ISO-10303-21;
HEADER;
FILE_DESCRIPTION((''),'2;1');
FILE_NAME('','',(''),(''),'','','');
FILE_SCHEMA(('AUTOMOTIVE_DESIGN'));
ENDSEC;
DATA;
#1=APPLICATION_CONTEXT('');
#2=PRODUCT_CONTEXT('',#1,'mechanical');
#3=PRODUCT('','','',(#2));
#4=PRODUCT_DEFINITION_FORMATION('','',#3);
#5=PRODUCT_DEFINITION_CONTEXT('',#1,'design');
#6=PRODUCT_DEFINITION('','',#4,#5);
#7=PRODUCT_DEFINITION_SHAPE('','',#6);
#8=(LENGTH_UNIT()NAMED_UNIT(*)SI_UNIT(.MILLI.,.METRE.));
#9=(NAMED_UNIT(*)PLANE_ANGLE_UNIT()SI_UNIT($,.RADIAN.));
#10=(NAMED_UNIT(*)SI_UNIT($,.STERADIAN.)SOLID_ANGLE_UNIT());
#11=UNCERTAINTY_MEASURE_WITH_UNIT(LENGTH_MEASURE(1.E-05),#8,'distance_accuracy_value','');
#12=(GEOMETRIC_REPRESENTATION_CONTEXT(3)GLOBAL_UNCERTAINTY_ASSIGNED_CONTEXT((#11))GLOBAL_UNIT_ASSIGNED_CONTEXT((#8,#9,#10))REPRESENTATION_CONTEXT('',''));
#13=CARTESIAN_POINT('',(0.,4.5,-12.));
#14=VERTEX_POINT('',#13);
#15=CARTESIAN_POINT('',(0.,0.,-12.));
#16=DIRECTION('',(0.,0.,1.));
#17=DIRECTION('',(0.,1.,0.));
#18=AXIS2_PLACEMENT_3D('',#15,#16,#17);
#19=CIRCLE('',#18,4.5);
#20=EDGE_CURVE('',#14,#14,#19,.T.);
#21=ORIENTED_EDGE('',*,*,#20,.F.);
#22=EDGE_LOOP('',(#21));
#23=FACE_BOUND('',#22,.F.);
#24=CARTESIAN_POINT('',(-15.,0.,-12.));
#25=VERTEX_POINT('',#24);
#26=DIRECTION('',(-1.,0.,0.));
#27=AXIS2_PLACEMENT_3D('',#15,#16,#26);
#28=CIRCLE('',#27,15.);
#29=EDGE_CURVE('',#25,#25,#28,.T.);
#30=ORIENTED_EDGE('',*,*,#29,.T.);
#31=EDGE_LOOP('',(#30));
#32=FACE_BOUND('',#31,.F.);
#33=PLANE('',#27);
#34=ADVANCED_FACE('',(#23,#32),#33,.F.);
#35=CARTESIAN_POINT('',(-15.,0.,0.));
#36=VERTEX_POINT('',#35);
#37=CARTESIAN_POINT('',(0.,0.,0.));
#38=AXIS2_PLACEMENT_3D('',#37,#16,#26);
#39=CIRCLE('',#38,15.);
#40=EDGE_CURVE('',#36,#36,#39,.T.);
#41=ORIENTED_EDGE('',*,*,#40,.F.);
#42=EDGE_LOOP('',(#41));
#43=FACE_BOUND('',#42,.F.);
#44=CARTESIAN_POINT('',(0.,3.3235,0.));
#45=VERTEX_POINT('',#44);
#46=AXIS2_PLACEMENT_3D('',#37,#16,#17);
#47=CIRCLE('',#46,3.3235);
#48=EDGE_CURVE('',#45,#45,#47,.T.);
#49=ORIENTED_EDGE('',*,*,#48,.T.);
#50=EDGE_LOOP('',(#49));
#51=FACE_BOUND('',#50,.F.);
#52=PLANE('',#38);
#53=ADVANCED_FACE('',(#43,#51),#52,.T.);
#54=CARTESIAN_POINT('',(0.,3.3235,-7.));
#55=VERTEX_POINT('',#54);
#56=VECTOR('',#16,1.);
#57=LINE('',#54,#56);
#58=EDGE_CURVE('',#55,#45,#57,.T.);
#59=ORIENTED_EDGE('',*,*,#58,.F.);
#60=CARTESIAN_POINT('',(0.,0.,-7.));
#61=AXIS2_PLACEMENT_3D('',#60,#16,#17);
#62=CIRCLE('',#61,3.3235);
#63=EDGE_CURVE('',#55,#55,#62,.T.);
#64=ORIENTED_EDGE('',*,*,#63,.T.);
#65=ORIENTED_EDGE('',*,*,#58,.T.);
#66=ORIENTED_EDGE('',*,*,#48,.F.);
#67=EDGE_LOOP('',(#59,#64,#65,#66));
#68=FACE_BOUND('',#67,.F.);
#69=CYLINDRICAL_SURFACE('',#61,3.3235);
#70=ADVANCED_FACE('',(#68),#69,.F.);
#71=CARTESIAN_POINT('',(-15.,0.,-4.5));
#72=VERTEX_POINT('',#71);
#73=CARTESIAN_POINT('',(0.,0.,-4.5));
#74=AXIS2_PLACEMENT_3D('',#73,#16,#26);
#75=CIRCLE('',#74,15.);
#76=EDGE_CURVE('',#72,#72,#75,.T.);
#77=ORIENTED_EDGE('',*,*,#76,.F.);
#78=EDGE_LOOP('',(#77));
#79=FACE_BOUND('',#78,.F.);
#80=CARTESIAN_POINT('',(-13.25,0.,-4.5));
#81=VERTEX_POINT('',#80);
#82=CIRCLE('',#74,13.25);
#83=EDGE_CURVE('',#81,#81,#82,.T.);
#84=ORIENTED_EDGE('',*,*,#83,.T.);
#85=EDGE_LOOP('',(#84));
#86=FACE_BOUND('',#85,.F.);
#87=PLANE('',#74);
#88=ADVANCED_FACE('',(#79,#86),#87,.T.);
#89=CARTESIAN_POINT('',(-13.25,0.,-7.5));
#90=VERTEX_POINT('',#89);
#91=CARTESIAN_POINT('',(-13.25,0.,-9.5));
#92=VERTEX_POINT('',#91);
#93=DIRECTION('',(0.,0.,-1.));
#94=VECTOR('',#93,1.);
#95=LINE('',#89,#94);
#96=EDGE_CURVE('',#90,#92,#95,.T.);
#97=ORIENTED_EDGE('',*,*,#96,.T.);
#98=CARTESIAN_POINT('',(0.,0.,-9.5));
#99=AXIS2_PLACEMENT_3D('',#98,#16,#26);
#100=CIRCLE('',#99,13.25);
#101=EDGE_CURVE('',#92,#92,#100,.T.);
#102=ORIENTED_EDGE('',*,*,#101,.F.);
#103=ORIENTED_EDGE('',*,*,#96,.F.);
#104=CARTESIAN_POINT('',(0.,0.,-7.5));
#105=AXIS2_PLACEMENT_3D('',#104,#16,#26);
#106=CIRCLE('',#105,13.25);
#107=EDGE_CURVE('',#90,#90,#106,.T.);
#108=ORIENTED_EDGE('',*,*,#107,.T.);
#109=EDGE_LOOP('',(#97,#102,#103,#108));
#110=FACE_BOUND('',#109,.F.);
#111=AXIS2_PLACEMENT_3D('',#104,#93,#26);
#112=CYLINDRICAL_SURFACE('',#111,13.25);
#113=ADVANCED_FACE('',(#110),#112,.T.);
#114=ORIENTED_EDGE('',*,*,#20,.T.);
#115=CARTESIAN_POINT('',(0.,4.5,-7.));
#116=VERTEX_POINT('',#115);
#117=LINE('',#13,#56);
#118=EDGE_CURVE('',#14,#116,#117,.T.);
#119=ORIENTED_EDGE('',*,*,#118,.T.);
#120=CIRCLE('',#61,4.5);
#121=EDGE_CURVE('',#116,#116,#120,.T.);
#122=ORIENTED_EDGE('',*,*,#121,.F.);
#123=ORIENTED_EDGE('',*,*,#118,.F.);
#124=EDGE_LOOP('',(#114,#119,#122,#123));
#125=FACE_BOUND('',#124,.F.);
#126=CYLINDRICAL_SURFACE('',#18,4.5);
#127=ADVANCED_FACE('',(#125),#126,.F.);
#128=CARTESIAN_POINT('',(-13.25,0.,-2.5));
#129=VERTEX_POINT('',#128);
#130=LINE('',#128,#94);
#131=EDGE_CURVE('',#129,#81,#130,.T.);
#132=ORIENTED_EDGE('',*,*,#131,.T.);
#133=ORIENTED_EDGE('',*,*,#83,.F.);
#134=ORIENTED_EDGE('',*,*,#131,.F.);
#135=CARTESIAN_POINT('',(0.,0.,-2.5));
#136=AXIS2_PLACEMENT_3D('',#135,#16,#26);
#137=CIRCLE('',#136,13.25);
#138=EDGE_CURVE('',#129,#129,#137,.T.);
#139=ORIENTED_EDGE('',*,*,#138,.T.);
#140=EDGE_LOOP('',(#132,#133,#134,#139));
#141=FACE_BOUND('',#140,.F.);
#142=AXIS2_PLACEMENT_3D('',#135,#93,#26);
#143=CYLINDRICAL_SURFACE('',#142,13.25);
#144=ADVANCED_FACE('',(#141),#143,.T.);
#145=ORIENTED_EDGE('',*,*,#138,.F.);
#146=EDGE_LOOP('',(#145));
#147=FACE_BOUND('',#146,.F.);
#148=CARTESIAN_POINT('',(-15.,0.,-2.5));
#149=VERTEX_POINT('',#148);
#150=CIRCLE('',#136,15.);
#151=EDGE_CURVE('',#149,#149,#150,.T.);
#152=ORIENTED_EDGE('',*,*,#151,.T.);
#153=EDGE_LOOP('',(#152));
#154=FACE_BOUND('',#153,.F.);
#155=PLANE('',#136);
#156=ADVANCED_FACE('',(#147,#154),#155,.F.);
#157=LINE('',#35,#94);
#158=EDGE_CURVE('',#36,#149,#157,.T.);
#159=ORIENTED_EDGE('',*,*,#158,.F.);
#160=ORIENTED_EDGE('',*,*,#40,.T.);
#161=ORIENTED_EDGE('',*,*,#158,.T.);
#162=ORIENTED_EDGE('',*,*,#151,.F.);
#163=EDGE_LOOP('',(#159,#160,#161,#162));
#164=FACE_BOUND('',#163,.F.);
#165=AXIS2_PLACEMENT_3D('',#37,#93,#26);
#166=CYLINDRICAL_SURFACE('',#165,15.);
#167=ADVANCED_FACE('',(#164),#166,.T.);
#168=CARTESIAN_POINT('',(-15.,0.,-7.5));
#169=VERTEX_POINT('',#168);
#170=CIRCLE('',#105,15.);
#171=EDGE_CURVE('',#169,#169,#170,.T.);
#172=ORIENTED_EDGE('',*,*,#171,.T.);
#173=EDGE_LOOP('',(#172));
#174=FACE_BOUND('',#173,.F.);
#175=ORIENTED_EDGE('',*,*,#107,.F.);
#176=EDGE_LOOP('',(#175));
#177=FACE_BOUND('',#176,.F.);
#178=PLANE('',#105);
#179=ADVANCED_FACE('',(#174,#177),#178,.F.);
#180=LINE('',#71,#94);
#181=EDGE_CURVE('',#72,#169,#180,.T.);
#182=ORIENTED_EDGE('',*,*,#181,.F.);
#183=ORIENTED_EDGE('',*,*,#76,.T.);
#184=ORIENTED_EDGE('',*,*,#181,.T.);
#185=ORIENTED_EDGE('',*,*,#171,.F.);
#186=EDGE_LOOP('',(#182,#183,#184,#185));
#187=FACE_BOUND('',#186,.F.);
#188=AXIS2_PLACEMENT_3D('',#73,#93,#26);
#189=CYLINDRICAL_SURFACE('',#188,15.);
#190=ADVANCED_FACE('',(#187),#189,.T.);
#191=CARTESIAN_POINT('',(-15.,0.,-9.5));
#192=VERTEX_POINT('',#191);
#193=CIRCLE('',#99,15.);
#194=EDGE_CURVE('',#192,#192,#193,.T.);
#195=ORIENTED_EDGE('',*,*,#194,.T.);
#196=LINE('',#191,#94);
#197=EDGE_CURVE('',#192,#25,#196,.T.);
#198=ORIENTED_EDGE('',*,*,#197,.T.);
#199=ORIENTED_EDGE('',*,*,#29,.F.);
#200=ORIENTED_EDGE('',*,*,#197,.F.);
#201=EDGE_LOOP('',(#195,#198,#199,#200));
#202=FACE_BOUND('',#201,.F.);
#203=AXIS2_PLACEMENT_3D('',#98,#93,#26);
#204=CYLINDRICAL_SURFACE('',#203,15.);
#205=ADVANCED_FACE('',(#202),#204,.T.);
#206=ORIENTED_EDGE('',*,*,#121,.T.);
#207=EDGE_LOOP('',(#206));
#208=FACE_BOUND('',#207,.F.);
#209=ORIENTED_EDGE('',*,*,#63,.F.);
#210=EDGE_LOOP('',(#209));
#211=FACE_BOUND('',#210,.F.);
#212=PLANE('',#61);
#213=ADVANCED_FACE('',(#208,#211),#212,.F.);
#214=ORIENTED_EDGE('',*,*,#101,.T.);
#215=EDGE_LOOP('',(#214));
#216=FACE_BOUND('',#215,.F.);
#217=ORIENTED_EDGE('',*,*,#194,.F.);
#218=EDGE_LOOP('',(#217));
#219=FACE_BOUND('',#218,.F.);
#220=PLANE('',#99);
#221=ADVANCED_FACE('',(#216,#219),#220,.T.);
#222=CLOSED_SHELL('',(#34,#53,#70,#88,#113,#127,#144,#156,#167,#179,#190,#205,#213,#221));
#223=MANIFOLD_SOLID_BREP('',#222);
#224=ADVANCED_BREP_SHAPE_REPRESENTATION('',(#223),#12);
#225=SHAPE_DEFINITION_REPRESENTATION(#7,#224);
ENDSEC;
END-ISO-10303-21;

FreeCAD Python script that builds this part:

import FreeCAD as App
import Part
import Sketcher


def add_polygon(sketch, points):
    """Adds a closed chain of lines whose ends are joined by coincident constraints."""
    first, n = sketch.GeometryCount, len(points)
    for a, b in zip(points, points[1:] + points[:1]):
        sketch.addGeometry(Part.LineSegment(App.Vector(*a, 0), App.Vector(*b, 0)), False)
    for i in range(n):
        sketch.addConstraint(Sketcher.Constraint("Coincident", first + i, 2, first + (i + 1) % n, 1))

doc = App.newDocument("Part")
body = doc.addObject("PartDesign::Body", "Body")

# Sketch on XZ plane
sketch1 = body.newObject("Sketcher::SketchObject", "Sketch")
sketch1.AttachmentSupport = (doc.getObject("XZ_Plane"), [""])
sketch1.MapMode = "FlatFace"
add_polygon(sketch1, [(-15, 0), (0, 0), (0, -12), (-15, -12), (-15, -9.5), (-13.2, -9.5), (-13.2, -7.5), (-15, -7.5), (-15, -4.5), (-13.2, -4.5), (-13.2, -2.5), (-15, -2.5)])  # lines 0-11
sketch1.addConstraint([
    Sketcher.Constraint("Horizontal", 0),
    Sketcher.Constraint("Vertical", 1),
    Sketcher.Constraint("Horizontal", 2),
    Sketcher.Constraint("Vertical", 3),
    Sketcher.Constraint("Horizontal", 4),
    Sketcher.Constraint("Vertical", 5),
    Sketcher.Constraint("Horizontal", 6),
    Sketcher.Constraint("Vertical", 7),
    Sketcher.Constraint("Horizontal", 8),
    Sketcher.Constraint("Vertical", 9),
    Sketcher.Constraint("Horizontal", 10),
    Sketcher.Constraint("Vertical", 11),
    Sketcher.Constraint("Coincident", 0, 2, -1, 1),
    Sketcher.Constraint("Vertical", 3, 2, 6, 2),
    Sketcher.Constraint("Vertical", 5, 2, 8, 2),
    Sketcher.Constraint("Vertical", 7, 2, 10, 2),
    Sketcher.Constraint("Equal", 5, 9),
    Sketcher.Constraint("Equal", 3, 11),
    Sketcher.Constraint("DistanceY", 1, 2, 1, 1, 12.0),
    Sketcher.Constraint("DistanceY", 5, 1, 5, 2, 2.0),
    Sketcher.Constraint("DistanceY", 3, 1, 3, 2, 2.5),
    Sketcher.Constraint("DistanceX", 0, 1, 0, 2, 15.0),
    Sketcher.Constraint("DistanceX", 4, 1, 4, 2, 1.75),
])
revolution = body.newObject("PartDesign::Revolution", "Revolution")
revolution.Profile = sketch1
revolution.ReferenceAxis = (sketch1, ["V_Axis"])
revolution.Angle = 360

# Sketch on XY plane
sketch2 = body.newObject("Sketcher::SketchObject", "Sketch001")
sketch2.AttachmentSupport = (doc.getObject("XY_Plane"), [""])
sketch2.MapMode = "FlatFace"
sketch2.AttachmentOffset = App.Placement(App.Vector(0, 0, -12), App.Rotation())
sketch2.addGeometry(Part.Circle(App.Vector(0, 0, 0), App.Vector(0, 0, 1), 3.3), False)
sketch2.addConstraint([
    Sketcher.Constraint("Coincident", 0, 3, -1, 1),
    Sketcher.Constraint("Diameter", 0, 6.647),
])
doc.recompute()
hole = body.newObject("PartDesign::Hole", "Hole")
hole.Profile = sketch2
hole.ThreadType = "None"
hole.Diameter = 6.647
hole.DepthType = "ThroughAll"
hole.HoleCutType = "Counterbore"
hole.HoleCutDiameter = 9
hole.HoleCutDepth = 5
hole.Reversed = True

doc.recompute()
